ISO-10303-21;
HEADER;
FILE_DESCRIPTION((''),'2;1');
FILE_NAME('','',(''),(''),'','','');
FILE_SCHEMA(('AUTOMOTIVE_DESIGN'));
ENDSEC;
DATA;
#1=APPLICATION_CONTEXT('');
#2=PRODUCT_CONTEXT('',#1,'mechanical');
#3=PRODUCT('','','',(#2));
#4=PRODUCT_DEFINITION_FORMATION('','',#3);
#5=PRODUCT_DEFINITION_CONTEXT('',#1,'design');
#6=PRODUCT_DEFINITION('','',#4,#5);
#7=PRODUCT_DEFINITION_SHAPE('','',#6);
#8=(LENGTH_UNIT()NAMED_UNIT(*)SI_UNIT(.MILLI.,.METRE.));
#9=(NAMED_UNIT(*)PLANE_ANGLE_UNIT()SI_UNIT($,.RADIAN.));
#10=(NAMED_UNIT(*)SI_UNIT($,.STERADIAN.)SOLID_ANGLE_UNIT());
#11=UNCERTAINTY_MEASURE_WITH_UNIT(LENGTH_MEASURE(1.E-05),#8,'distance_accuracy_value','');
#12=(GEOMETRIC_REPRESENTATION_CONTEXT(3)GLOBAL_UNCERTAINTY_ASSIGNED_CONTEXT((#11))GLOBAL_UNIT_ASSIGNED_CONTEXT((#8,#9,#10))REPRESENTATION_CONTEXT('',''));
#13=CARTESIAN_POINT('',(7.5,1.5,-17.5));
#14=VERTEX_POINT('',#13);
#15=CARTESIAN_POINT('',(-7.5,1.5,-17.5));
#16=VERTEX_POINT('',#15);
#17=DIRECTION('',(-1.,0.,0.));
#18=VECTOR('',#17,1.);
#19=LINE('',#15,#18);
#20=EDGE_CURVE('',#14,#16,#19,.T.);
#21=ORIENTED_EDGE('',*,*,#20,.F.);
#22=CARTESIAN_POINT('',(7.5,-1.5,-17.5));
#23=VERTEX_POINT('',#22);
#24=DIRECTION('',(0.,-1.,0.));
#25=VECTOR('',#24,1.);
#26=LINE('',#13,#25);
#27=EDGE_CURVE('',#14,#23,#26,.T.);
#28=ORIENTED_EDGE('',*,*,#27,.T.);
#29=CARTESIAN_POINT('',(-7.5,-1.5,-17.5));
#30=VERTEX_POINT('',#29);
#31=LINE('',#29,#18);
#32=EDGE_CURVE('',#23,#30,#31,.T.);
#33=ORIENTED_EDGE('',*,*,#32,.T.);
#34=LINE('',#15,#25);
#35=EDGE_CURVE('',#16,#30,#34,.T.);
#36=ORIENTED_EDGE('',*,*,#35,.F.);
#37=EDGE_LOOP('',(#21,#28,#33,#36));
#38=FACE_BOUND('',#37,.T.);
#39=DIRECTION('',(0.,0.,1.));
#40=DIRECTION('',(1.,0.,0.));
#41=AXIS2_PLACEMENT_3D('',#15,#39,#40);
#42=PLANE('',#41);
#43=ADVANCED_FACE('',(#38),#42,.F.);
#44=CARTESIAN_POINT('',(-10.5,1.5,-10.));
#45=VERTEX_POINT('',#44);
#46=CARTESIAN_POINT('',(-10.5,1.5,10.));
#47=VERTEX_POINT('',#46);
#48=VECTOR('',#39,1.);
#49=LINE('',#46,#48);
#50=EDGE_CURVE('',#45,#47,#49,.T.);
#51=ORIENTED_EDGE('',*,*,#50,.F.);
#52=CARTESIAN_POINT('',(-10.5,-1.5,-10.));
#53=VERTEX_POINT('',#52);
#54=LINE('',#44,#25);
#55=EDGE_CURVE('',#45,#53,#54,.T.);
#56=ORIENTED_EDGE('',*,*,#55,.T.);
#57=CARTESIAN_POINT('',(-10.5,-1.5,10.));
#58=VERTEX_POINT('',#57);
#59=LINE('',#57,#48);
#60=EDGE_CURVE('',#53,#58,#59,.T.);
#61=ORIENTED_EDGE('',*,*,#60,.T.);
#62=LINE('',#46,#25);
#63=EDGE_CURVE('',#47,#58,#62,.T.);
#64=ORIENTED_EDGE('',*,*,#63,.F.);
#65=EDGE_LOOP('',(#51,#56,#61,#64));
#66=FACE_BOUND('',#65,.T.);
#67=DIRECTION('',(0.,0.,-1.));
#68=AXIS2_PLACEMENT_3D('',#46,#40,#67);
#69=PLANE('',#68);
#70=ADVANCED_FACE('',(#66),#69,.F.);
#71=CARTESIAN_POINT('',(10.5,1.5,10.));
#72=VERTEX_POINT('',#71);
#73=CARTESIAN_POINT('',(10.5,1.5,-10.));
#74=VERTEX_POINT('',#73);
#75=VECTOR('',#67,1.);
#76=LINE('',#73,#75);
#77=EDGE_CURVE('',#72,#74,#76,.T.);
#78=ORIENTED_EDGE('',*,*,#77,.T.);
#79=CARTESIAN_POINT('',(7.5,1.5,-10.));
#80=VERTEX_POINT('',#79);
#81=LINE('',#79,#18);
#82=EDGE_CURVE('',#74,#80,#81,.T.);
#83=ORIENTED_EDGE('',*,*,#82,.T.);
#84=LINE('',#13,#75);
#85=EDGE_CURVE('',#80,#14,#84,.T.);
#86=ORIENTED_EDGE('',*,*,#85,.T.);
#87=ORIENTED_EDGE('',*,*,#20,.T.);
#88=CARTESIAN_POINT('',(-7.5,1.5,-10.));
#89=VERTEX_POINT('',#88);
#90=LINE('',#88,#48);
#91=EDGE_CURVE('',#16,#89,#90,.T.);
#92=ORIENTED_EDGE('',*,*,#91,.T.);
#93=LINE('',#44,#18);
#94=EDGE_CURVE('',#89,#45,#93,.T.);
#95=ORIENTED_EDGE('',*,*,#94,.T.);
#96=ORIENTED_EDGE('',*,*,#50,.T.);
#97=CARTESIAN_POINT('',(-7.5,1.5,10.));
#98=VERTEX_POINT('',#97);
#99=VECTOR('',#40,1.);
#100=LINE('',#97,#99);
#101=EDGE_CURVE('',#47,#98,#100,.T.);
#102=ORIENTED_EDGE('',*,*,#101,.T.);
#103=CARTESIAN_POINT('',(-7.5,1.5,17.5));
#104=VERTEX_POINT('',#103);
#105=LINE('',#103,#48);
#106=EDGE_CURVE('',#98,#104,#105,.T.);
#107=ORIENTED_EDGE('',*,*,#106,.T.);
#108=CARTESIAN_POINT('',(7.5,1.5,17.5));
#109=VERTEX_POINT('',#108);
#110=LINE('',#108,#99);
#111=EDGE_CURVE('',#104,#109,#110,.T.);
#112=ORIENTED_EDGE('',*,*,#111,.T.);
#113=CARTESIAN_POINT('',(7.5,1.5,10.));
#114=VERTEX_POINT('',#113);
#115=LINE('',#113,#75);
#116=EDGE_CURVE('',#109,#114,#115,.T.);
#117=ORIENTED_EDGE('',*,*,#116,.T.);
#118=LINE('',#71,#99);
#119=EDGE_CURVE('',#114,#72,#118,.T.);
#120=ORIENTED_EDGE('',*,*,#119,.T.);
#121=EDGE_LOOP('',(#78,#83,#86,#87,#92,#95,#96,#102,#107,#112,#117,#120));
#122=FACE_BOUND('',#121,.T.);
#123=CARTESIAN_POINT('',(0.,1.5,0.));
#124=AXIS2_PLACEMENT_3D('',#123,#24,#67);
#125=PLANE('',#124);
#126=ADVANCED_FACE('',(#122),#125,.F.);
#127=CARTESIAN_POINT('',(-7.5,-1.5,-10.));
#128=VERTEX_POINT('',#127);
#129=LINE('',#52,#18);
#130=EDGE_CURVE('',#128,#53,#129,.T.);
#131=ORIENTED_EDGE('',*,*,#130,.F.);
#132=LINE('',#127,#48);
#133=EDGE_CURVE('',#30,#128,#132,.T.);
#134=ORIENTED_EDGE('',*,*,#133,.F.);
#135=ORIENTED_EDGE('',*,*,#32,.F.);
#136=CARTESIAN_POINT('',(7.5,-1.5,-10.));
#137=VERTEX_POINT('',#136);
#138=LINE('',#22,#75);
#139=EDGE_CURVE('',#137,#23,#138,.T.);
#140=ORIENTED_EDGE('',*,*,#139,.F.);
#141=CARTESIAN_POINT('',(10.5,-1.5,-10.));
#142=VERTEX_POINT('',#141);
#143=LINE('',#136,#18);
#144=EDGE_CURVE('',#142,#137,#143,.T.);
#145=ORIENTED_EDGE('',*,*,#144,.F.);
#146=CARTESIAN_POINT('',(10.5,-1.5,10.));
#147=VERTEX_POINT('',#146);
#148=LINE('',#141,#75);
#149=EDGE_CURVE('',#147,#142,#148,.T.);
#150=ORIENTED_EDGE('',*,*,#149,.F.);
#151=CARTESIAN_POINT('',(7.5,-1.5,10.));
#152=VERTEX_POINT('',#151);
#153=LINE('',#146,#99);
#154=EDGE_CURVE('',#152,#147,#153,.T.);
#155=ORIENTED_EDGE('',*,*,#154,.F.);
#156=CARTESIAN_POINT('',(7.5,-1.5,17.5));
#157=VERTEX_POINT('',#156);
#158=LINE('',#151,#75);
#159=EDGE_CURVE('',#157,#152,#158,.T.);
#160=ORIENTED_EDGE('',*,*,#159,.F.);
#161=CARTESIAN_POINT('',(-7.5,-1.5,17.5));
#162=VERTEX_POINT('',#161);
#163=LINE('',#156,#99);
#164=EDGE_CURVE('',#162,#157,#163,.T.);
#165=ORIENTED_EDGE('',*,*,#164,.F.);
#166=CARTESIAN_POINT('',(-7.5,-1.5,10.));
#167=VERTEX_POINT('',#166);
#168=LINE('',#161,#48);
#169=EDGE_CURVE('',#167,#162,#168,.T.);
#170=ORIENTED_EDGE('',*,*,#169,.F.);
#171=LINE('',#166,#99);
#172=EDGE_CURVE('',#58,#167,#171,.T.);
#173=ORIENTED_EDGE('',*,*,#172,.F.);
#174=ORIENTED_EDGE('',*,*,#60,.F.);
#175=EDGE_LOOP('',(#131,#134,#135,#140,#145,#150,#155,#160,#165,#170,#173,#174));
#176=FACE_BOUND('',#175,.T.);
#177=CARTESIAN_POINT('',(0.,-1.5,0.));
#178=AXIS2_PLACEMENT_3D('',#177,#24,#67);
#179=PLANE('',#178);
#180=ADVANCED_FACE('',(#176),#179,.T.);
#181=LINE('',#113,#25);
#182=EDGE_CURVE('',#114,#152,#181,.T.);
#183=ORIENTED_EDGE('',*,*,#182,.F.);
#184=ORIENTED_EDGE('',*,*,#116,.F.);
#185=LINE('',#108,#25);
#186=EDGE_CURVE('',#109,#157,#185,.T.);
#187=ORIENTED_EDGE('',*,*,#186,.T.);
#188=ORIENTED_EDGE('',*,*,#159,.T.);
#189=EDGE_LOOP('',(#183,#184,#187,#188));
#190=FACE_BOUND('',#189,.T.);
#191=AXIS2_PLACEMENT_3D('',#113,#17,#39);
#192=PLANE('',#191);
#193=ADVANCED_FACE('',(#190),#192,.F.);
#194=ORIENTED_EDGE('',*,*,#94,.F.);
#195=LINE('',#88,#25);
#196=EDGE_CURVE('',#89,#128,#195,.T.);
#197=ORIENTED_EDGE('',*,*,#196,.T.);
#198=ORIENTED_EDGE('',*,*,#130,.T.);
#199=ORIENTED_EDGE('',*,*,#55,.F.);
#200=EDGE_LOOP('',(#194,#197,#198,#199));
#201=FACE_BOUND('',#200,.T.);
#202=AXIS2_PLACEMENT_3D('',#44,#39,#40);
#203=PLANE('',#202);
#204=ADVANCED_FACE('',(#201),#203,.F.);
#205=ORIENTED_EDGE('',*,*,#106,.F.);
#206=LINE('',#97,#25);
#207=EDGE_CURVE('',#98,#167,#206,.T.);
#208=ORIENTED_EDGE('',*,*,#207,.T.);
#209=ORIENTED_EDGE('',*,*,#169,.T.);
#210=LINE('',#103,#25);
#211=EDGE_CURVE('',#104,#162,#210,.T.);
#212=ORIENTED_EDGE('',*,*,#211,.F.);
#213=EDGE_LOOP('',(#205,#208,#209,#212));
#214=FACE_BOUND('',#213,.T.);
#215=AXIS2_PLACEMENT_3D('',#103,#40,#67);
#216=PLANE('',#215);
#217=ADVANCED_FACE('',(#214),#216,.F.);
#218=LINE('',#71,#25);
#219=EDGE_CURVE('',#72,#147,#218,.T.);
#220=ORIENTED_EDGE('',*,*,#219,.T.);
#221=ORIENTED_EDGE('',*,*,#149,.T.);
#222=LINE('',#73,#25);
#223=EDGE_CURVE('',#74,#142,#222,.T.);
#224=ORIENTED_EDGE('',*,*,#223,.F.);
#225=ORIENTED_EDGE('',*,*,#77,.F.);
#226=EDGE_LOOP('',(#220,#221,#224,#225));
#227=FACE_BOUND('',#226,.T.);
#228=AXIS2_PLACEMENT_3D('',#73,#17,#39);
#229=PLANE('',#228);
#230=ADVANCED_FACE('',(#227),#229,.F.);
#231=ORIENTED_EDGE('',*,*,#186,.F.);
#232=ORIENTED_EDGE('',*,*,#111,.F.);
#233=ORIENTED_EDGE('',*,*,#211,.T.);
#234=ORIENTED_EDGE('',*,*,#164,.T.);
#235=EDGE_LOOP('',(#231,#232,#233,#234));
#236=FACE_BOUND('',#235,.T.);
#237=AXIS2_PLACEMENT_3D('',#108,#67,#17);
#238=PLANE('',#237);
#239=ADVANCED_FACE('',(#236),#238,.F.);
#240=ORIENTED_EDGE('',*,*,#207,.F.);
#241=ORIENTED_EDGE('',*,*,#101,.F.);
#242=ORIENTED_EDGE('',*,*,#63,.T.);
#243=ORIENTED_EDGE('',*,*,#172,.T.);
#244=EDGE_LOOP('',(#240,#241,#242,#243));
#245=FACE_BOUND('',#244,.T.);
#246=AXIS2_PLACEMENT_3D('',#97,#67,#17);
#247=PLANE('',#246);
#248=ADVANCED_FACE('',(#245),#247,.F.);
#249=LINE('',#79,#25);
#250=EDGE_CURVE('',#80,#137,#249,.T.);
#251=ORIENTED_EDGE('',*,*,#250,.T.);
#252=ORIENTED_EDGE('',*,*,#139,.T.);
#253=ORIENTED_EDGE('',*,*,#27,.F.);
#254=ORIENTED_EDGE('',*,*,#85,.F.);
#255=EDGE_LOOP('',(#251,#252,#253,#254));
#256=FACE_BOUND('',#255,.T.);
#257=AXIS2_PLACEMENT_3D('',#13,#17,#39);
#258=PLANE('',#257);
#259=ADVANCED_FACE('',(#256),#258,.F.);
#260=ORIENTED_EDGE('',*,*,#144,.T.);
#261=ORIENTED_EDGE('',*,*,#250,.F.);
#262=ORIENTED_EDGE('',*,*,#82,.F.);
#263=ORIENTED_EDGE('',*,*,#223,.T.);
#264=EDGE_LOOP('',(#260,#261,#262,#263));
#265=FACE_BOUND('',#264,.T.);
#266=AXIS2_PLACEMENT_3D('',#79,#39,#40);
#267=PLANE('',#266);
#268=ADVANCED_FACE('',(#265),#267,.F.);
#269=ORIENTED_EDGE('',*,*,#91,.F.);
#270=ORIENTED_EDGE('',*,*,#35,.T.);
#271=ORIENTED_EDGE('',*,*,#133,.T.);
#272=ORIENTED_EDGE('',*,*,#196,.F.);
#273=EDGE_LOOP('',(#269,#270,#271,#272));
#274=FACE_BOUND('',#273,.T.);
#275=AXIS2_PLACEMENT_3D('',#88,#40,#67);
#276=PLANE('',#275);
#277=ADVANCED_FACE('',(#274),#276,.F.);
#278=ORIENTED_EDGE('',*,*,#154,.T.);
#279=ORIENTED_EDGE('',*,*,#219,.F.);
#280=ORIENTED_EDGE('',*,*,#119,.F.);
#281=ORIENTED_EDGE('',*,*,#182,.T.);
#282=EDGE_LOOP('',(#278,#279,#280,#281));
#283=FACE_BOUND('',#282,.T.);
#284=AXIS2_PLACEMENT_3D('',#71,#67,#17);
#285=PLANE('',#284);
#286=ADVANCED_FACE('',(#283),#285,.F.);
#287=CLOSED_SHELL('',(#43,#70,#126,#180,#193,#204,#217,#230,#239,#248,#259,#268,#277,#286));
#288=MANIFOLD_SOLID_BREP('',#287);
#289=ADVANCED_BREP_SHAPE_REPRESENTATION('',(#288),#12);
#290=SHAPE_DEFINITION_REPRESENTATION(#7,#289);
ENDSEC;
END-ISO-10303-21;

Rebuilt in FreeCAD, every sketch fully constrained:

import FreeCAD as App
import Part
import Sketcher

V = App.Vector
Q = App.Units.Quantity


def add_polygon(sketch, points):
    """Adds a closed chain of lines whose ends are joined by coincident constraints."""
    first, n = sketch.GeometryCount, len(points)
    for a, b in zip(points, points[1:] + points[:1]):
        sketch.addGeometry(Part.LineSegment(App.Vector(*a, 0), App.Vector(*b, 0)), False)
    for i in range(n):
        sketch.addConstraint(Sketcher.Constraint("Coincident", first + i, 2, first + (i + 1) % n, 1))

doc = App.newDocument("Part")
body = doc.addObject("PartDesign::Body", "Body")

sketch1 = body.newObject("Sketcher::SketchObject", "Sketch")
sketch1.AttachmentSupport = (doc.getObject("XZ_Plane"), [""])
sketch1.MapMode = "FlatFace"
add_polygon(sketch1, [(-7.5, -10), (-10.5, -10), (-10.5, 10), (-7.5, 10), (-7.5, 17.5), (7.5, 17.5), (7.5, 10), (10.5, 10), (10.5, -10), (7.5, -10), (7.5, -17.5), (-7.5, -17.5)])
sketch1.addConstraint(Sketcher.Constraint("Horizontal", 0))
sketch1.addConstraint(Sketcher.Constraint("Vertical", 1))
sketch1.addConstraint(Sketcher.Constraint("Horizontal", 2))
sketch1.addConstraint(Sketcher.Constraint("Vertical", 3))
sketch1.addConstraint(Sketcher.Constraint("Horizontal", 4))
sketch1.addConstraint(Sketcher.Constraint("Vertical", 5))
sketch1.addConstraint(Sketcher.Constraint("Horizontal", 6))
sketch1.addConstraint(Sketcher.Constraint("Vertical", 7))
sketch1.addConstraint(Sketcher.Constraint("Horizontal", 8))
sketch1.addConstraint(Sketcher.Constraint("Vertical", 9))
sketch1.addConstraint(Sketcher.Constraint("Horizontal", 10))
sketch1.addConstraint(Sketcher.Constraint("Vertical", 11))
sketch1.addConstraint(Sketcher.Constraint("Symmetric", 0, 2, 6, 2, -1, 1))
sketch1.addConstraint(Sketcher.Constraint("Symmetric", 2, 2, 8, 2, -1, 1))
sketch1.addConstraint(Sketcher.Constraint("Symmetric", 4, 2, 10, 2, -1, 1))
sketch1.addConstraint(Sketcher.Constraint("Symmetric", 2, 2, 5, 2, -2))
sketch1.addConstraint(Sketcher.Constraint("DistanceX", 0, 2, 0, 1, Q("3 mm")))
sketch1.addConstraint(Sketcher.Constraint("DistanceX", 4, 1, 4, 2, Q("15 mm")))
sketch1.addConstraint(Sketcher.Constraint("DistanceY", 1, 1, 1, 2, Q("20 mm")))
sketch1.addConstraint(Sketcher.Constraint("DistanceY", 3, 1, 3, 2, Q("7.5 mm")))
pad1 = body.newObject("PartDesign::Pad", "Pad")
pad1.Profile = sketch1
pad1.Length = 3
pad1.Midplane = True

doc.recompute()
